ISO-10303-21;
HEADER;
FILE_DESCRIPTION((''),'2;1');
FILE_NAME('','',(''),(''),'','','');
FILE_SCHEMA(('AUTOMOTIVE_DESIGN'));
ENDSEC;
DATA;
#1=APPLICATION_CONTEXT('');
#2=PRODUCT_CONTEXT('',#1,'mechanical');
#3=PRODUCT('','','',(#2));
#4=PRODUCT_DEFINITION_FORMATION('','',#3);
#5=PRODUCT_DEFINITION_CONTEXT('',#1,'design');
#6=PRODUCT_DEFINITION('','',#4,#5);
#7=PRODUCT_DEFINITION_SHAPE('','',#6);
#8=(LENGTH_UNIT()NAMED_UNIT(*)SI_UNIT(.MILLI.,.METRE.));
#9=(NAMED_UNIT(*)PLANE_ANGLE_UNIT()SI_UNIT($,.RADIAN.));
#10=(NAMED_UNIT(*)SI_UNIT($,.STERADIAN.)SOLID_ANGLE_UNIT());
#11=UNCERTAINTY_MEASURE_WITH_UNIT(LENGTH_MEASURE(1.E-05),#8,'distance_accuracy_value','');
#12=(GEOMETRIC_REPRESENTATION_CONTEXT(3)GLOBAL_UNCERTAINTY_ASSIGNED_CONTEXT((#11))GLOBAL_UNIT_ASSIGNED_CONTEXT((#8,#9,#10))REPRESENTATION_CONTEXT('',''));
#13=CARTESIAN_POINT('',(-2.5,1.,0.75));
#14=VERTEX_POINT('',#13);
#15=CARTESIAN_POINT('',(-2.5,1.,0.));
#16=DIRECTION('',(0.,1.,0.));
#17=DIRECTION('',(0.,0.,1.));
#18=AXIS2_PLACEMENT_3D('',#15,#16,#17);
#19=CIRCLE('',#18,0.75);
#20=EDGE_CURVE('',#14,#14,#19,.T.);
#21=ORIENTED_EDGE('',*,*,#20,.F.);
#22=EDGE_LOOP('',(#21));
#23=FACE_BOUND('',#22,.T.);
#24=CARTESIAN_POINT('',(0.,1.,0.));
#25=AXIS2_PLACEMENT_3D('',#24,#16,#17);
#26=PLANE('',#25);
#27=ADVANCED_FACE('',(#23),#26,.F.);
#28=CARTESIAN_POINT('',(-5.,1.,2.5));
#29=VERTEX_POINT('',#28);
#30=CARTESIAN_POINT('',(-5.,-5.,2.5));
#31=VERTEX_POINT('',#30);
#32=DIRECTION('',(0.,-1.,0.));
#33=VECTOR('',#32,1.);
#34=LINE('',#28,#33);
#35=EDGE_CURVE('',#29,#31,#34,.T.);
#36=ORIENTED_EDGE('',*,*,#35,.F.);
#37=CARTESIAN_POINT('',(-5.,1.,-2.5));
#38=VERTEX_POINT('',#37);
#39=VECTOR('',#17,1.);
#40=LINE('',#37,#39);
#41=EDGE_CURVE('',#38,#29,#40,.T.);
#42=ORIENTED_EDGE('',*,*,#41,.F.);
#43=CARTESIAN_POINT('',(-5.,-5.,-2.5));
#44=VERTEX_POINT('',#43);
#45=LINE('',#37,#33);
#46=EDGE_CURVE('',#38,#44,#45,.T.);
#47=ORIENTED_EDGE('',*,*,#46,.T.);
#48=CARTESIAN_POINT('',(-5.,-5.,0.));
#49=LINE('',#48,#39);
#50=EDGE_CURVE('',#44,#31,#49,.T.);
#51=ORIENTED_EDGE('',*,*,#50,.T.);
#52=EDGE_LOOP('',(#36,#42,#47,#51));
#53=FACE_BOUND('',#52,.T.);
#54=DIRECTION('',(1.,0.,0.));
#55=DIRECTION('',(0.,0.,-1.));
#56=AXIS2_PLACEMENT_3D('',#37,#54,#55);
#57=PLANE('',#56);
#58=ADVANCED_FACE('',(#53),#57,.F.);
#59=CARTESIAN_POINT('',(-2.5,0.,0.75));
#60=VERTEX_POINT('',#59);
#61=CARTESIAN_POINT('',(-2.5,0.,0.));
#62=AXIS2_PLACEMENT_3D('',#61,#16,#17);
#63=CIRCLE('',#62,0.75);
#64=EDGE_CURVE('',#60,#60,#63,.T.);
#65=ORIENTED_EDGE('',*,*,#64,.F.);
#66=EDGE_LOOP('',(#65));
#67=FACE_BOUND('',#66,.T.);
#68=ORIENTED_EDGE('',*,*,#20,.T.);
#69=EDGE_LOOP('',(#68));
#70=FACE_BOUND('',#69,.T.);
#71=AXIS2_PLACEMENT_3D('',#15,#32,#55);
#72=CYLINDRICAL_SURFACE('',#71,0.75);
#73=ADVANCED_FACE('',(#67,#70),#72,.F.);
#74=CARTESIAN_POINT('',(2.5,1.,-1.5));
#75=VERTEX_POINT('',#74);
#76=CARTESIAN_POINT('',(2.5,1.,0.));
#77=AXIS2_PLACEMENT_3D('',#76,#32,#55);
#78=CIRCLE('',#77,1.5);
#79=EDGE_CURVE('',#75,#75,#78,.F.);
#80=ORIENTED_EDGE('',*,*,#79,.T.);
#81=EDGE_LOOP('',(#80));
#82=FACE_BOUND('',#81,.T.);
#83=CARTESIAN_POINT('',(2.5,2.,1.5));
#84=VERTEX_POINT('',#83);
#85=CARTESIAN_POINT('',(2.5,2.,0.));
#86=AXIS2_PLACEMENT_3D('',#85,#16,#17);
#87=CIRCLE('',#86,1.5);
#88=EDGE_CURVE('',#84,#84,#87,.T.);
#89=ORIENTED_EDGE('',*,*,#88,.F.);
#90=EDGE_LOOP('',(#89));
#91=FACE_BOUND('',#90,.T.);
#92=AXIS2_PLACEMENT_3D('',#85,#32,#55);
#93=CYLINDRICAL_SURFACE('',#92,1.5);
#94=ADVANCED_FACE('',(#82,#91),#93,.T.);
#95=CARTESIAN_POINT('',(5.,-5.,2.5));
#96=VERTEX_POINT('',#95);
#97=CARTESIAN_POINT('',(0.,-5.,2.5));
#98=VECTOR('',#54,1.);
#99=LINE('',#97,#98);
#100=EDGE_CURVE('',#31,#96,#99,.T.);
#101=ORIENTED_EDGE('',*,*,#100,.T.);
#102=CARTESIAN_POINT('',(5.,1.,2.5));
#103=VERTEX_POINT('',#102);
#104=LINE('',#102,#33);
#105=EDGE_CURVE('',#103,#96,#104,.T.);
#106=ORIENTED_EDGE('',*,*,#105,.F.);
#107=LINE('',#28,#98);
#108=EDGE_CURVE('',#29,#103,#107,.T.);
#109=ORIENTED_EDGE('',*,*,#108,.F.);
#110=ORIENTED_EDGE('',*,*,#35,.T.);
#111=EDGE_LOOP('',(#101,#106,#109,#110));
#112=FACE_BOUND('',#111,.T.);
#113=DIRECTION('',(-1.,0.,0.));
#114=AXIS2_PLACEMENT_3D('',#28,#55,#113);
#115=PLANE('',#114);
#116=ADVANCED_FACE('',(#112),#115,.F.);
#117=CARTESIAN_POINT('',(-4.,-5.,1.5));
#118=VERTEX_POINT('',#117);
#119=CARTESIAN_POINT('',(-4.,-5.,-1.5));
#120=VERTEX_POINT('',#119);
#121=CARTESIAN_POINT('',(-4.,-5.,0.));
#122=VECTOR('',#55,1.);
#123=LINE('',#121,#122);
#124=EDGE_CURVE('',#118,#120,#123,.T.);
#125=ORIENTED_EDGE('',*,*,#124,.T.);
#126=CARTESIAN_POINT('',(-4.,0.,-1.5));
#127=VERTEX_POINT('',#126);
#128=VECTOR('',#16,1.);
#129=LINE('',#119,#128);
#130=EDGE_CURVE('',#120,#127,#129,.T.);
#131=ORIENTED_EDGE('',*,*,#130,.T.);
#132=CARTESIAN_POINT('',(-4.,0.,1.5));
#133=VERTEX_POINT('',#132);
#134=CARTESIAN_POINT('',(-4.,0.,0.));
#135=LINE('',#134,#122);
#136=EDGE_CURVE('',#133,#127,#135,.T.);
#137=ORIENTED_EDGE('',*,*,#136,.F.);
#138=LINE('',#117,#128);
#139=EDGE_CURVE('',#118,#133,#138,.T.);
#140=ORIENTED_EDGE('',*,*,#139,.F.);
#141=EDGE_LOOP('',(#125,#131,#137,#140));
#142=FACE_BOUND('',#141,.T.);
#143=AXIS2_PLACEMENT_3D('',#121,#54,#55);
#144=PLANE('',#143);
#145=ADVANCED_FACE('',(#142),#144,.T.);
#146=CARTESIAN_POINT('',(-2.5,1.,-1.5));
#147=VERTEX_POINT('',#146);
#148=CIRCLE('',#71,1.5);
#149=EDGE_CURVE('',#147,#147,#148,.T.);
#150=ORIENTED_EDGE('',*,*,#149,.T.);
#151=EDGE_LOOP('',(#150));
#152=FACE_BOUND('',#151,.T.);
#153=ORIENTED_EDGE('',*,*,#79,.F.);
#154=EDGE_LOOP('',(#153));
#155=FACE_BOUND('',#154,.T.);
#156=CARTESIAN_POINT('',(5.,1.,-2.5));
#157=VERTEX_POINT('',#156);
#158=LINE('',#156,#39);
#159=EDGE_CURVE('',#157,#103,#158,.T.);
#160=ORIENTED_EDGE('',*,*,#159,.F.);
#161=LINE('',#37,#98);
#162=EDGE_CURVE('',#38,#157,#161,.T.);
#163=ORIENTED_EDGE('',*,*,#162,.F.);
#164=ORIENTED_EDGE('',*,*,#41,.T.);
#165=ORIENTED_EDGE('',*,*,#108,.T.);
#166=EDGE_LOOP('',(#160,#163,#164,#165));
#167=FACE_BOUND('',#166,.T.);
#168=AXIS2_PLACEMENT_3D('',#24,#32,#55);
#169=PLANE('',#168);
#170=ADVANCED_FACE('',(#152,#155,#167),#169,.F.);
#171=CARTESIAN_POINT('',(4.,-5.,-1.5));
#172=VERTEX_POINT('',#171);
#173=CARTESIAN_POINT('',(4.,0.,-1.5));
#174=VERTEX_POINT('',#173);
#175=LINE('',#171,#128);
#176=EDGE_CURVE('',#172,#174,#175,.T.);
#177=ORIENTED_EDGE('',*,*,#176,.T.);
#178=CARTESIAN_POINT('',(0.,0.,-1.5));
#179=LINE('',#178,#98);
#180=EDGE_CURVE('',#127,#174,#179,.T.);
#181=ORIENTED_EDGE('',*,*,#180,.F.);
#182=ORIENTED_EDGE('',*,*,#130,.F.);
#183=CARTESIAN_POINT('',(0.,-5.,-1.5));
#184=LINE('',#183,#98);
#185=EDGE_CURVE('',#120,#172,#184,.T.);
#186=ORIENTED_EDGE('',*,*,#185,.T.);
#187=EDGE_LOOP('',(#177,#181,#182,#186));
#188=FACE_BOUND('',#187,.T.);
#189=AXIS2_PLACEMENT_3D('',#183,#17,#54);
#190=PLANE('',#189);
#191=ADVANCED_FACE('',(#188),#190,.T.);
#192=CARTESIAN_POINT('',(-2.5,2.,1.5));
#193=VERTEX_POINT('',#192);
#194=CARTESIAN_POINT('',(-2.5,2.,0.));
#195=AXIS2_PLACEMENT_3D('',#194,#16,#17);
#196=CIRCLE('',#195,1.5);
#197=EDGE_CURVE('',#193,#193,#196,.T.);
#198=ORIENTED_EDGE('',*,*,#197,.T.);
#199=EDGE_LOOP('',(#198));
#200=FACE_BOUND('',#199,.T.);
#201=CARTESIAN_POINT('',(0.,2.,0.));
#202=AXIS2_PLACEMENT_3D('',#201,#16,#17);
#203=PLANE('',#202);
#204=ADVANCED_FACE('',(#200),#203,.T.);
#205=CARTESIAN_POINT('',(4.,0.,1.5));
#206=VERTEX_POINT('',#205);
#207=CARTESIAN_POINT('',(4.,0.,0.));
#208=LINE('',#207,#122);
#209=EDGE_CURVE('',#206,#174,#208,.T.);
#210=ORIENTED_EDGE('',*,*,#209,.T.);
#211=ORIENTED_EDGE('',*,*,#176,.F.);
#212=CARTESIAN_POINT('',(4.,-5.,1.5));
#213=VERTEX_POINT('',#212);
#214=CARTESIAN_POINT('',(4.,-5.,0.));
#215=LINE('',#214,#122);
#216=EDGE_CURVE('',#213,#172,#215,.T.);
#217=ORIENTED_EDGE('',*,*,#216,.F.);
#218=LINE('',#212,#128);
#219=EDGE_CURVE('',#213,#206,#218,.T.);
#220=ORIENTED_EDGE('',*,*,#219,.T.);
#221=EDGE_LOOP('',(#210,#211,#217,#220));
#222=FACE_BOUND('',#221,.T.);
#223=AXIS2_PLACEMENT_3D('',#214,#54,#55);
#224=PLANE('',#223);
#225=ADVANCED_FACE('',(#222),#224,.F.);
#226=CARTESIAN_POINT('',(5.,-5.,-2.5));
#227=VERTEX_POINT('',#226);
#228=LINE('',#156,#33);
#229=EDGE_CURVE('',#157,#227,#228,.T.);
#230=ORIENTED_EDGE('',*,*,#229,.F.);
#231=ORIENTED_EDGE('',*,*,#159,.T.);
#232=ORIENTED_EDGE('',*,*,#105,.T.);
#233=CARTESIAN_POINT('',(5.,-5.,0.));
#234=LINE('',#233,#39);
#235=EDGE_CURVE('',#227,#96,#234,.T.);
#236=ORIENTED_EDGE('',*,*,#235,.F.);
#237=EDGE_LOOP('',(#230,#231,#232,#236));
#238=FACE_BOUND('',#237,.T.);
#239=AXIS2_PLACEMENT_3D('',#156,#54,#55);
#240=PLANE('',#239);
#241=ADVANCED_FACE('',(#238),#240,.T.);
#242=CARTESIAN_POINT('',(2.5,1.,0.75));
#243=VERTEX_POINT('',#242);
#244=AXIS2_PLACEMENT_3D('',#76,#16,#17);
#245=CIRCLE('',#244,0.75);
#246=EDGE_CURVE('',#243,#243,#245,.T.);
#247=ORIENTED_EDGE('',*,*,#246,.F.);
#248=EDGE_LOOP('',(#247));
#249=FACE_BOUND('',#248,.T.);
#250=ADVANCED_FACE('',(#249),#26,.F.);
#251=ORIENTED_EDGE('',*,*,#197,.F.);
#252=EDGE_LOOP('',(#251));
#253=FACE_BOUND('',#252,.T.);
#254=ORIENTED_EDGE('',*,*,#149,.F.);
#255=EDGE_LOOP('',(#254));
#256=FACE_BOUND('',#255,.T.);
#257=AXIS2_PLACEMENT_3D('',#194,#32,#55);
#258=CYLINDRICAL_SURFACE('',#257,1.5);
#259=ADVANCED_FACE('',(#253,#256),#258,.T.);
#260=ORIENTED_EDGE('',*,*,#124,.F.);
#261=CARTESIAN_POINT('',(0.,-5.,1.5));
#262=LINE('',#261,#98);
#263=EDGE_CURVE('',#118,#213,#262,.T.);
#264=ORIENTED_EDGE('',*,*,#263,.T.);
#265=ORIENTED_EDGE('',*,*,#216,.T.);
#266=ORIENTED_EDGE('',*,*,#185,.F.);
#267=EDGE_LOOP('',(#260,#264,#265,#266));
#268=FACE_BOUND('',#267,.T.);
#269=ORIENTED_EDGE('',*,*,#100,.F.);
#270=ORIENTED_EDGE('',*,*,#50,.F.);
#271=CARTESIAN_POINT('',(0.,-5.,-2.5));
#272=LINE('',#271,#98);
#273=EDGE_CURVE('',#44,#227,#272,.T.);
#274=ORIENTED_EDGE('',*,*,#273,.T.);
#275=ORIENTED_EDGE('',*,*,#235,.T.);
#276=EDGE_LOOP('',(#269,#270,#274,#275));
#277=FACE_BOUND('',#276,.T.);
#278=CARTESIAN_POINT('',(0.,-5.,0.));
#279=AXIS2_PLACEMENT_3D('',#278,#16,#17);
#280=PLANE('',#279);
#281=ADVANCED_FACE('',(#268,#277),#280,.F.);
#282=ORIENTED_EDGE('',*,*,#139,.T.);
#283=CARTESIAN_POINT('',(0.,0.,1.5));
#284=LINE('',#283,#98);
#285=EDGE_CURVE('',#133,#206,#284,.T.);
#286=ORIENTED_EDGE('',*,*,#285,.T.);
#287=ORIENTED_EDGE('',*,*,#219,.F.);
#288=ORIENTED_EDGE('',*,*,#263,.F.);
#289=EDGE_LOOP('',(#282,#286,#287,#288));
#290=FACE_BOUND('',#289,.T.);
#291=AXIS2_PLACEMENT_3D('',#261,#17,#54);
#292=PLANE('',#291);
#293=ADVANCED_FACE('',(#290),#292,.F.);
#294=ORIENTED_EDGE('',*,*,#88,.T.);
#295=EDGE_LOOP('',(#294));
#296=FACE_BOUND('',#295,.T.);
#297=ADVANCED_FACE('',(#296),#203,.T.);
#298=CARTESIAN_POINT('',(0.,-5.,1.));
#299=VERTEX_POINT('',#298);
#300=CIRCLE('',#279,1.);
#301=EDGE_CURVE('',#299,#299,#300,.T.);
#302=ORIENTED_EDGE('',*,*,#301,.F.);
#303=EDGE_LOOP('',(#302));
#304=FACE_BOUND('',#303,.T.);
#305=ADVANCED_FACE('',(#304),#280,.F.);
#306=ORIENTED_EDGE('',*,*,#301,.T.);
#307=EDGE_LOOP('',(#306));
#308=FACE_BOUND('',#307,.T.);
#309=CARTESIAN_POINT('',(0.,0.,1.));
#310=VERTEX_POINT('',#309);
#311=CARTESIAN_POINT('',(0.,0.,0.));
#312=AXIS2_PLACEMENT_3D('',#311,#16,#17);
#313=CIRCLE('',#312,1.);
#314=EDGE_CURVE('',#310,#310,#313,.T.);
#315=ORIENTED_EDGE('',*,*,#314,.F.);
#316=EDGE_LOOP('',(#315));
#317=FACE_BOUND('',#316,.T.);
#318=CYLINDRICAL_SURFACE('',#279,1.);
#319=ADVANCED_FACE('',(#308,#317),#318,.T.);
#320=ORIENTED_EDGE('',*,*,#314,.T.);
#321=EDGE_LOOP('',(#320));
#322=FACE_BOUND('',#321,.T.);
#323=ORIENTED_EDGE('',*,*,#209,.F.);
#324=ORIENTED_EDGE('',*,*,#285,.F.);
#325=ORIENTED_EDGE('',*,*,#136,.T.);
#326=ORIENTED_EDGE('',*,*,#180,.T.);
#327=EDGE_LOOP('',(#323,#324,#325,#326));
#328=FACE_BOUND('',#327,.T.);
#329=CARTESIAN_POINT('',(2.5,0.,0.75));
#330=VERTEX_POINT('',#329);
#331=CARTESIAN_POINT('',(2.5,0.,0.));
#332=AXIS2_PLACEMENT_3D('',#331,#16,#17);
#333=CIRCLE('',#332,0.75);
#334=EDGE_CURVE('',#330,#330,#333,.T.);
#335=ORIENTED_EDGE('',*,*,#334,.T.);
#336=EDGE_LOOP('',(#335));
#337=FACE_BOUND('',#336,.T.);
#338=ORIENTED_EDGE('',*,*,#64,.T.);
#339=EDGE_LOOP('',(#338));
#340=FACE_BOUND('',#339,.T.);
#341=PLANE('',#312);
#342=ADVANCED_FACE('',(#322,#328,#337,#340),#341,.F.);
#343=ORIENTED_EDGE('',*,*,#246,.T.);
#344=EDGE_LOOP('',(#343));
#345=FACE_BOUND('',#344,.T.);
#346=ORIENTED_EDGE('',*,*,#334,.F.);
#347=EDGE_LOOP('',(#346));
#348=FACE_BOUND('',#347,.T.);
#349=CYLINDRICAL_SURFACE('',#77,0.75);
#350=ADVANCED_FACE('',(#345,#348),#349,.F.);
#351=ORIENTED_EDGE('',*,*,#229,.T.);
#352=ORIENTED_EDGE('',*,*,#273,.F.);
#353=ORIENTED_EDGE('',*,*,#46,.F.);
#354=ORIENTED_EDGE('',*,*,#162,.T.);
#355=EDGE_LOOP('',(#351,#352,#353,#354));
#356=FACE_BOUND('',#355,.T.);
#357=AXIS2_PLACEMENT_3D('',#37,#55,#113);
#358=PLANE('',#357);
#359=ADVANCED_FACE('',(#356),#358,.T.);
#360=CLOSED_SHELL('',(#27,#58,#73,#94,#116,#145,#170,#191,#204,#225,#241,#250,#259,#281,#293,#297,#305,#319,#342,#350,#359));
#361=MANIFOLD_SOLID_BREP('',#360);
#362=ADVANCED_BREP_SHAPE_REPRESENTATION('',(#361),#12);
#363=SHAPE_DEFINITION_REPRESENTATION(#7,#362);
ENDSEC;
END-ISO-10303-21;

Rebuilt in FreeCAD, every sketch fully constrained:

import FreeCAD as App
import Part
import Sketcher

doc = App.newDocument("Part")
body = doc.addObject("PartDesign::Body", "Body")
body.AllowCompound = True

# Sketch on XZ plane
sketch1 = doc.addObject("Sketcher::SketchObject", "Sketch")
body.addObject(sketch1)
sketch1.AttachmentSupport = (doc.XZ_Plane, [""])
sketch1.MapMode = "FlatFace"
sketch1.addGeometry([
    Part.Circle(App.Vector(-2.5, 0, 0), App.Vector(0, 0, 1), 1.5),
    Part.Circle(App.Vector(2.5, 0, 0), App.Vector(0, 0, 1), 1.5),
], False)
sketch1.addConstraint([
    Sketcher.Constraint("Equal", 0, 1),
    Sketcher.Constraint("Symmetric", 0, 3, 1, 3, -1, 1),
    Sketcher.Constraint("PointOnObject", 0, 3, -1),
    Sketcher.Constraint("Diameter", 0, 3.0),
    Sketcher.Constraint("DistanceX", 0, 3, 1, 3, 5.0),
])
pad1 = doc.addObject("PartDesign::Pad", "Pad")
body.addObject(pad1)
pad1.Profile = sketch1
pad1.Length = 2
pad1.Reversed = True

# Sketch on XZ plane
sketch2 = doc.addObject("Sketcher::SketchObject", "Sketch001")
body.addObject(sketch2)
sketch2.AttachmentSupport = (doc.XZ_Plane, [""])
sketch2.MapMode = "FlatFace"
sketch2.addGeometry([
    Part.LineSegment(App.Vector(-5, -2, 0), App.Vector(-5, 2, 0)),
    Part.LineSegment(App.Vector(-5, 2, 0), App.Vector(5, 2, 0)),
    Part.LineSegment(App.Vector(5, 2, 0), App.Vector(5, -2, 0)),
    Part.LineSegment(App.Vector(5, -2, 0), App.Vector(-5, -2, 0)),
], False)
sketch2.addConstraint([
    Sketcher.Constraint("Coincident", 0, 2, 1, 1),
    Sketcher.Constraint("Coincident", 1, 2, 2, 1),
    Sketcher.Constraint("Coincident", 2, 2, 3, 1),
    Sketcher.Constraint("Coincident", 3, 2, 0, 1),
    Sketcher.Constraint("Vertical", 0),
    Sketcher.Constraint("Horizontal", 1),
    Sketcher.Constraint("Vertical", 2),
    Sketcher.Constraint("Horizontal", 3),
    Sketcher.Constraint("Symmetric", 0, 2, 2, 2, -1, 1),
    Sketcher.Constraint("DistanceX", 1, 1, 1, 2, 10.0),
    Sketcher.Constraint("DistanceY", 0, 1, 0, 2, 5.0),
])
pad2 = doc.addObject("PartDesign::Pad", "Pad001")
body.addObject(pad2)
pad2.Profile = sketch2
pad2.Length = 1
pad2.Reversed = True

# Sketch on XZ plane
sketch3 = doc.addObject("Sketcher::SketchObject", "Sketch002")
body.addObject(sketch3)
sketch3.AttachmentSupport = (doc.XZ_Plane, [""])
sketch3.MapMode = "FlatFace"
sketch3.addGeometry([
    Part.Circle(App.Vector(-2.5, 0, 0), App.Vector(0, 0, 1), 0.8),
    Part.Circle(App.Vector(2.5, 0, 0), App.Vector(0, 0, 1), 0.8),
], False)
sketch3.addConstraint([
    Sketcher.Constraint("Equal", 0, 1),
    Sketcher.Constraint("Symmetric", 0, 3, 1, 3, -1, 1),
    Sketcher.Constraint("PointOnObject", 0, 3, -1),
    Sketcher.Constraint("Diameter", 0, 1.5),
    Sketcher.Constraint("DistanceX", 0, 3, 1, 3, 5.0),
])
pocket1 = doc.addObject("PartDesign::Pocket", "Pocket")
body.addObject(pocket1)
pocket1.Profile = sketch3
pocket1.Length = 1

# Sketch on XZ plane
sketch4 = doc.addObject("Sketcher::SketchObject", "Sketch003")
body.addObject(sketch4)
sketch4.AttachmentSupport = (doc.XZ_Plane, [""])
sketch4.MapMode = "FlatFace"
sketch4.addGeometry([
    Part.LineSegment(App.Vector(-5, -2.5, 0), App.Vector(-5, 2.5, 0)),  # 0
    Part.LineSegment(App.Vector(-5, 2.5, 0), App.Vector(5, 2.5, 0)),  # 1
    Part.LineSegment(App.Vector(5, 2.5, 0), App.Vector(5, -2.5, 0)),  # 2
    Part.LineSegment(App.Vector(5, -2.5, 0), App.Vector(-5, -2.5, 0)),  # 3
    Part.LineSegment(App.Vector(4, 1.5, 0), App.Vector(-4, 1.5, 0)),  # 4
    Part.LineSegment(App.Vector(-4, 1.5, 0), App.Vector(-4, -1.5, 0)),  # 5
    Part.LineSegment(App.Vector(-4, -1.5, 0), App.Vector(4, -1.5, 0)),  # 6
    Part.LineSegment(App.Vector(4, -1.5, 0), App.Vector(4, 1.5, 0)),  # 7
    Part.Circle(App.Vector(0, 0, 0), App.Vector(0, 0, 1), 1),  # 8
], False)
sketch4.addConstraint([
    Sketcher.Constraint("Coincident", 0, 2, 1, 1),
    Sketcher.Constraint("Coincident", 1, 2, 2, 1),
    Sketcher.Constraint("Coincident", 2, 2, 3, 1),
    Sketcher.Constraint("Coincident", 3, 2, 0, 1),
    Sketcher.Constraint("Coincident", 4, 2, 5, 1),
    Sketcher.Constraint("Coincident", 5, 2, 6, 1),
    Sketcher.Constraint("Coincident", 6, 2, 7, 1),
    Sketcher.Constraint("Coincident", 7, 2, 4, 1),
    Sketcher.Constraint("Vertical", 0),
    Sketcher.Constraint("Horizontal", 1),
    Sketcher.Constraint("Vertical", 2),
    Sketcher.Constraint("Horizontal", 3),
    Sketcher.Constraint("Horizontal", 4),
    Sketcher.Constraint("Vertical", 5),
    Sketcher.Constraint("Horizontal", 6),
    Sketcher.Constraint("Vertical", 7),
    Sketcher.Constraint("Coincident", 8, 3, -1, 1),
    Sketcher.Constraint("Symmetric", 0, 2, 2, 2, -1, 1),
    Sketcher.Constraint("Symmetric", 4, 2, 6, 2, -1, 1),
    Sketcher.Constraint("Diameter", 8, 2.0),
    Sketcher.Constraint("DistanceX", 1, 1, 1, 2, 10.0),
    Sketcher.Constraint("DistanceX", 4, 2, 4, 1, 8.0),
    Sketcher.Constraint("DistanceY", 0, 1, 0, 2, 5.0),
    Sketcher.Constraint("DistanceY", 5, 2, 5, 1, 3.0),
])
pad3 = doc.addObject("PartDesign::Pad", "Pad002")
body.addObject(pad3)
pad3.Profile = sketch4
pad3.Length = 5

doc.recompute()
